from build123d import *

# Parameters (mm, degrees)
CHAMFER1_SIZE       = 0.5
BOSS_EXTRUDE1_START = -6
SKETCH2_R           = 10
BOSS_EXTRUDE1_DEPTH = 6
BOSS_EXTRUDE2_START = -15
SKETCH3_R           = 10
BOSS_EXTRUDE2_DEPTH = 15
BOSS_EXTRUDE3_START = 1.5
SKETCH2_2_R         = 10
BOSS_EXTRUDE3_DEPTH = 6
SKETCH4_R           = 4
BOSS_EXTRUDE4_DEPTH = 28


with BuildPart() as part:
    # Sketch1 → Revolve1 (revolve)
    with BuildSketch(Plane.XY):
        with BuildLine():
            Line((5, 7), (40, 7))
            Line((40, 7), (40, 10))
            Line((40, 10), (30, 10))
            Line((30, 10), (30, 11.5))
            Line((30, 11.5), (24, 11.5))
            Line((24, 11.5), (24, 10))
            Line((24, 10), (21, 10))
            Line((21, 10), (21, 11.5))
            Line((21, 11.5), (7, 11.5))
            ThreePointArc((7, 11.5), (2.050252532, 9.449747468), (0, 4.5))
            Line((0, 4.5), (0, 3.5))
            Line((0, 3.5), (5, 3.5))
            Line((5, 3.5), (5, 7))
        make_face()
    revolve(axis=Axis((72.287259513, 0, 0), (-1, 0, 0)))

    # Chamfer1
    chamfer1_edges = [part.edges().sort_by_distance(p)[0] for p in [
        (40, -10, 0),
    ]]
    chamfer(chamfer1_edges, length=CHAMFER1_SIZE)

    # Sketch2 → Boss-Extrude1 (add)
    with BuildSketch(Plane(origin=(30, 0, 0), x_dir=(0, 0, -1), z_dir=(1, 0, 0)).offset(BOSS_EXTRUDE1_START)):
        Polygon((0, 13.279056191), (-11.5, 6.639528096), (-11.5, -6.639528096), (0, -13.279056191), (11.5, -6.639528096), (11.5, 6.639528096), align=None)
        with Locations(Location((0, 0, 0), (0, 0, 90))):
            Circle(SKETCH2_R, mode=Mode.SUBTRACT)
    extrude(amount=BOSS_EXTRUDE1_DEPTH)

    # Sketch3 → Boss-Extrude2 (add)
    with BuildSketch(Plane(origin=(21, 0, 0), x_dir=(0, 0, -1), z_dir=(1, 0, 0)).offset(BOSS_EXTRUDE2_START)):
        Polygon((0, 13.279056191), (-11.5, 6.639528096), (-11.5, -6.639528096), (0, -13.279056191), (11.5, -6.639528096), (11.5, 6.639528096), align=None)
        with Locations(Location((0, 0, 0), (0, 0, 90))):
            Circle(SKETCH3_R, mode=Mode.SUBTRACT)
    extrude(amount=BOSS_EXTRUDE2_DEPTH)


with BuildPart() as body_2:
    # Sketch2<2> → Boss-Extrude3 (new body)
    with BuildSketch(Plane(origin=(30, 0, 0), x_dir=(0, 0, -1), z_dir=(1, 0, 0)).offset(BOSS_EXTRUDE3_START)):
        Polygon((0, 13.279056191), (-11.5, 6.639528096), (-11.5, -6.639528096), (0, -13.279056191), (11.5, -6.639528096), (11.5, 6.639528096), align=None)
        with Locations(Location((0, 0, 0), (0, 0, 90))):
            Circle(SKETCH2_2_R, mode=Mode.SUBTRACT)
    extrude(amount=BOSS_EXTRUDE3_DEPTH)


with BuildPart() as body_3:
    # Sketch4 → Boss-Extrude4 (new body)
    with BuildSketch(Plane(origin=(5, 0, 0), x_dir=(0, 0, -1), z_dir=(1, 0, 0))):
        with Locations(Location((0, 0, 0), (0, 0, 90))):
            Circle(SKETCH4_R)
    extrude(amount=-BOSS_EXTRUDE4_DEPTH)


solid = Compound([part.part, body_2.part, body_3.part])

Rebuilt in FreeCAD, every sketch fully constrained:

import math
import FreeCAD as App
import Part
import Sketcher
from FreeCAD import Vector
Q = App.Units.Quantity


def edges_at(feature, points):
    """Names of the edges that pass closest to the given points."""
    edges = feature.Shape.Edges
    near = lambda p: min(range(len(edges)), key=lambda i: edges[i].distToShape(Part.Vertex(*p))[0])
    return sorted({f"Edge{near(p) + 1}" for p in points})

doc = App.newDocument("Part")
params = doc.addObject("Spreadsheet::Sheet", "Params")
for row, (alias, value) in enumerate([
    ("sketch1_radius", "7 mm"),
    ("sketch1_width", "35 mm"),
    ("sketch1_width2", "10 mm"),
    ("sketch1_width3", "6 mm"),
    ("sketch1_width4", "3 mm"),
    ("revolution_angle", "360 deg"),
    ("chamfer_size", "0.5 mm"),
    ("sketch2_diameter", "20 mm"),
    ("pad1_length", "6 mm"),
    ("sketch3_diameter", "20 mm"),
    ("pad2_length", "15 mm"),
    ("sketch4_diameter", "20 mm"),
    ("pad3_length", "6 mm"),
    ("sketch5_diameter", "8 mm"),
    ("pad4_length", "28 mm"),
], start=1):
    params.set(f"A{row}", alias)
    params.set(f"B{row}", "=" + value)
    params.setAlias(f"B{row}", alias)

body = doc.addObject("PartDesign::Body", "Body")

# Sketch on XY plane
sketch1 = body.newObject("Sketcher::SketchObject", "Sketch")
sketch1.AttachmentSupport = (doc.getObject("XY_Plane"), [""])
sketch1.MapMode = "FlatFace"
sketch1.addGeometry(Part.LineSegment(Vector(5, 7, 0), Vector(40, 7, 0)), False)
sketch1.addGeometry(Part.LineSegment(Vector(40, 7, 0), Vector(40, 10, 0)), False)
sketch1.addGeometry(Part.LineSegment(Vector(40, 10, 0), Vector(30, 10, 0)), False)
sketch1.addGeometry(Part.LineSegment(Vector(30, 10, 0), Vector(30, 11.5, 0)), False)
sketch1.addGeometry(Part.LineSegment(Vector(30, 11.5, 0), Vector(24, 11.5, 0)), False)
sketch1.addGeometry(Part.LineSegment(Vector(24, 11.5, 0), Vector(24, 10, 0)), False)
sketch1.addGeometry(Part.LineSegment(Vector(24, 10, 0), Vector(21, 10, 0)), False)
sketch1.addGeometry(Part.LineSegment(Vector(21, 10, 0), Vector(21, 11.5, 0)), False)
sketch1.addGeometry(Part.LineSegment(Vector(21, 11.5, 0), Vector(7, 11.5, 0)), False)
sketch1.addGeometry(Part.ArcOfCircle(Part.Circle(Vector(7, 4.5, 0), Vector(0, 0, 1), 7), math.radians(90), math.radians(180)), False)
sketch1.addGeometry(Part.LineSegment(Vector(0, 4.5, 0), Vector(0, 3.5, 0)), False)
sketch1.addGeometry(Part.LineSegment(Vector(0, 3.5, 0), Vector(5, 3.5, 0)), False)
sketch1.addGeometry(Part.LineSegment(Vector(5, 3.5, 0), Vector(5, 7, 0)), False)
sketch1.addConstraint(Sketcher.Constraint("Coincident", 0, 2, 1, 1))
sketch1.addConstraint(Sketcher.Constraint("Coincident", 1, 2, 2, 1))
sketch1.addConstraint(Sketcher.Constraint("Coincident", 2, 2, 3, 1))
sketch1.addConstraint(Sketcher.Constraint("Coincident", 3, 2, 4, 1))
sketch1.addConstraint(Sketcher.Constraint("Coincident", 4, 2, 5, 1))
sketch1.addConstraint(Sketcher.Constraint("Coincident", 5, 2, 6, 1))
sketch1.addConstraint(Sketcher.Constraint("Coincident", 6, 2, 7, 1))
sketch1.addConstraint(Sketcher.Constraint("Coincident", 7, 2, 8, 1))
sketch1.addConstraint(Sketcher.Constraint("Tangent", 8, 2, 9, 1))
sketch1.addConstraint(Sketcher.Constraint("Tangent", 9, 2, 10, 1))
sketch1.addConstraint(Sketcher.Constraint("Coincident", 10, 2, 11, 1))
sketch1.addConstraint(Sketcher.Constraint("Coincident", 11, 2, 12, 1))
sketch1.addConstraint(Sketcher.Constraint("Coincident", 12, 2, 0, 1))
sketch1.addConstraint(Sketcher.Constraint("Horizontal", 0))
sketch1.addConstraint(Sketcher.Constraint("Vertical", 1))
sketch1.addConstraint(Sketcher.Constraint("Horizontal", 2))
sketch1.addConstraint(Sketcher.Constraint("Vertical", 3))
sketch1.addConstraint(Sketcher.Constraint("Horizontal", 4))
sketch1.addConstraint(Sketcher.Constraint("Vertical", 5))
sketch1.addConstraint(Sketcher.Constraint("Horizontal", 6))
sketch1.addConstraint(Sketcher.Constraint("Vertical", 7))
sketch1.addConstraint(Sketcher.Constraint("Horizontal", 8))
sketch1.addConstraint(Sketcher.Constraint("Vertical", 10))
sketch1.addConstraint(Sketcher.Constraint("Horizontal", 11))
sketch1.addConstraint(Sketcher.Constraint("Vertical", 12))
sketch1.addConstraint(Sketcher.Constraint("PointOnObject", 9, 2, -2))
sketch1.addConstraint(Sketcher.Constraint("Horizontal", 2, 2, 5, 2))
sketch1.addConstraint(Sketcher.Constraint("Horizontal", 4, 2, 7, 2))
sketch1.addConstraint(Sketcher.Constraint("Equal", 6, 1))
sketch1.addConstraint(Sketcher.Constraint("Radius", 9, Q("7 mm")))
sketch1.addConstraint(Sketcher.Constraint("DistanceX", 0, 1, 0, 2, Q("35 mm")))
sketch1.addConstraint(Sketcher.Constraint("DistanceX", 2, 2, 2, 1, Q("10 mm")))
sketch1.addConstraint(Sketcher.Constraint("DistanceX", 4, 2, 4, 1, Q("6 mm")))
sketch1.addConstraint(Sketcher.Constraint("DistanceX", 6, 2, 6, 1, Q("3 mm")))
sketch1.addConstraint(Sketcher.Constraint("DistanceX", 8, 2, 8, 1, Q("14 mm")))
sketch1.addConstraint(Sketcher.Constraint("DistanceY", 10, 2, 10, 1, Q("1 mm")))
sketch1.addConstraint(Sketcher.Constraint("DistanceY", 3, 1, 3, 2, Q("1.5 mm")))
sketch1.addConstraint(Sketcher.Constraint("DistanceY", -1, 1, 0, 2, Q("7 mm")))
sketch1.setExpression("Constraints[29]", "Params.sketch1_radius")
sketch1.setExpression("Constraints[30]", "Params.sketch1_width")
sketch1.setExpression("Constraints[31]", "Params.sketch1_width2")
sketch1.setExpression("Constraints[32]", "Params.sketch1_width3")
sketch1.setExpression("Constraints[33]", "Params.sketch1_width4")
revolution = body.newObject("PartDesign::Revolution", "Revolution")
revolution.Profile = sketch1
revolution.ReferenceAxis = (sketch1, ["H_Axis"])
revolution.setExpression("Angle", "Params.revolution_angle")
doc.recompute()

chamfer = body.newObject("PartDesign::Chamfer", "Chamfer")
chamfer.Base = (revolution, edges_at(revolution, [(40, -10, 0)]))
chamfer.setExpression("Size", "Params.chamfer_size")

# Sketch on YZ plane
sketch2 = body.newObject("Sketcher::SketchObject", "Sketch001")
sketch2.AttachmentSupport = (doc.getObject("YZ_Plane"), [""])
sketch2.MapMode = "FlatFace"
sketch2.AttachmentOffset = App.Placement(Vector(0, 0, 24), App.Rotation())
sketch2.addGeometry(Part.LineSegment(Vector(13, 0, 0), Vector(7, 12, 0)), False)
sketch2.addGeometry(Part.LineSegment(Vector(7, 12, 0), Vector(-7, 12, 0)), False)
sketch2.addGeometry(Part.LineSegment(Vector(-7, 12, 0), Vector(-13, 0, 0)), False)
sketch2.addGeometry(Part.LineSegment(Vector(-13, 0, 0), Vector(-7, -12, 0)), False)
sketch2.addGeometry(Part.LineSegment(Vector(-7, -12, 0), Vector(7, -12, 0)), False)
sketch2.addGeometry(Part.LineSegment(Vector(7, -12, 0), Vector(13, 0, 0)), False)
sketch2.addGeometry(Part.Circle(Vector(0, 0, 0), Vector(0, 0, 1), 10), False)
sketch2.addConstraint(Sketcher.Constraint("Coincident", 0, 2, 1, 1))
sketch2.addConstraint(Sketcher.Constraint("Coincident", 1, 2, 2, 1))
sketch2.addConstraint(Sketcher.Constraint("Coincident", 2, 2, 3, 1))
sketch2.addConstraint(Sketcher.Constraint("Coincident", 3, 2, 4, 1))
sketch2.addConstraint(Sketcher.Constraint("Coincident", 4, 2, 5, 1))
sketch2.addConstraint(Sketcher.Constraint("Coincident", 5, 2, 0, 1))
sketch2.addConstraint(Sketcher.Constraint("Horizontal", 1))
sketch2.addConstraint(Sketcher.Constraint("Horizontal", 4))
sketch2.addConstraint(Sketcher.Constraint("Coincident", 6, 3, -1, 1))
sketch2.addConstraint(Sketcher.Constraint("Symmetric", 0, 2, 3, 2, -1, 1))
sketch2.addConstraint(Sketcher.Constraint("Symmetric", 2, 2, 5, 2, -1, 1))
sketch2.addConstraint(Sketcher.Constraint("PointOnObject", 2, 2, -1))
sketch2.addConstraint(Sketcher.Constraint("Parallel", 2, 5))
sketch2.addConstraint(Sketcher.Constraint("Vertical", 1, 2, 3, 2))
sketch2.addConstraint(Sketcher.Constraint("Diameter", 6, Q("20 mm")))
sketch2.addConstraint(Sketcher.Constraint("Angle", 0, Q("120 deg")))
sketch2.addConstraint(Sketcher.Constraint("DistanceY", 3, 2, 1, 2, Q("23 mm")))
sketch2.addConstraint(Sketcher.Constraint("DistanceX", 1, 2, 1, 1, Q("13.279056 mm")))
sketch2.setExpression("Constraints[14]", "Params.sketch2_diameter")
pad1 = body.newObject("PartDesign::Pad", "Pad")
pad1.Profile = sketch2
pad1.setExpression("Length", "Params.pad1_length")

# Sketch on YZ plane
sketch3 = body.newObject("Sketcher::SketchObject", "Sketch002")
sketch3.AttachmentSupport = (doc.getObject("YZ_Plane"), [""])
sketch3.MapMode = "FlatFace"
sketch3.AttachmentOffset = App.Placement(Vector(0, 0, 6), App.Rotation())
sketch3.addGeometry(Part.LineSegment(Vector(13, 0, 0), Vector(7, 12, 0)), False)
sketch3.addGeometry(Part.LineSegment(Vector(7, 12, 0), Vector(-7, 12, 0)), False)
sketch3.addGeometry(Part.LineSegment(Vector(-7, 12, 0), Vector(-13, 0, 0)), False)
sketch3.addGeometry(Part.LineSegment(Vector(-13, 0, 0), Vector(-7, -12, 0)), False)
sketch3.addGeometry(Part.LineSegment(Vector(-7, -12, 0), Vector(7, -12, 0)), False)
sketch3.addGeometry(Part.LineSegment(Vector(7, -12, 0), Vector(13, 0, 0)), False)
sketch3.addGeometry(Part.Circle(Vector(0, 0, 0), Vector(0, 0, 1), 10), False)
sketch3.addConstraint(Sketcher.Constraint("Coincident", 0, 2, 1, 1))
sketch3.addConstraint(Sketcher.Constraint("Coincident", 1, 2, 2, 1))
sketch3.addConstraint(Sketcher.Constraint("Coincident", 2, 2, 3, 1))
sketch3.addConstraint(Sketcher.Constraint("Coincident", 3, 2, 4, 1))
sketch3.addConstraint(Sketcher.Constraint("Coincident", 4, 2, 5, 1))
sketch3.addConstraint(Sketcher.Constraint("Coincident", 5, 2, 0, 1))
sketch3.addConstraint(Sketcher.Constraint("Horizontal", 1))
sketch3.addConstraint(Sketcher.Constraint("Horizontal", 4))
sketch3.addConstraint(Sketcher.Constraint("Coincident", 6, 3, -1, 1))
sketch3.addConstraint(Sketcher.Constraint("Symmetric", 0, 2, 3, 2, -1, 1))
sketch3.addConstraint(Sketcher.Constraint("Symmetric", 2, 2, 5, 2, -1, 1))
sketch3.addConstraint(Sketcher.Constraint("PointOnObject", 2, 2, -1))
sketch3.addConstraint(Sketcher.Constraint("Parallel", 2, 5))
sketch3.addConstraint(Sketcher.Constraint("Vertical", 1, 2, 3, 2))
sketch3.addConstraint(Sketcher.Constraint("Diameter", 6, Q("20 mm")))
sketch3.addConstraint(Sketcher.Constraint("Angle", 0, Q("120 deg")))
sketch3.addConstraint(Sketcher.Constraint("DistanceY", 3, 2, 1, 2, Q("23 mm")))
sketch3.addConstraint(Sketcher.Constraint("DistanceX", 1, 2, 1, 1, Q("13.279056 mm")))
sketch3.setExpression("Constraints[14]", "Params.sketch3_diameter")
pad2 = body.newObject("PartDesign::Pad", "Pad001")
pad2.Profile = sketch3
pad2.setExpression("Length", "Params.pad2_length")
body2 = doc.addObject("PartDesign::Body", "Body001")

# Sketch on YZ plane
sketch4 = body2.newObject("Sketcher::SketchObject", "Sketch003")
sketch4.AttachmentSupport = (doc.getObject("YZ_Plane001"), [""])
sketch4.MapMode = "FlatFace"
sketch4.AttachmentOffset = App.Placement(Vector(0, 0, 31.5), App.Rotation())
sketch4.addGeometry(Part.LineSegment(Vector(13, 0, 0), Vector(7, 12, 0)), False)
sketch4.addGeometry(Part.LineSegment(Vector(7, 12, 0), Vector(-7, 12, 0)), False)
sketch4.addGeometry(Part.LineSegment(Vector(-7, 12, 0), Vector(-13, 0, 0)), False)
sketch4.addGeometry(Part.LineSegment(Vector(-13, 0, 0), Vector(-7, -12, 0)), False)
sketch4.addGeometry(Part.LineSegment(Vector(-7, -12, 0), Vector(7, -12, 0)), False)
sketch4.addGeometry(Part.LineSegment(Vector(7, -12, 0), Vector(13, 0, 0)), False)
sketch4.addGeometry(Part.Circle(Vector(0, 0, 0), Vector(0, 0, 1), 10), False)
sketch4.addConstraint(Sketcher.Constraint("Coincident", 0, 2, 1, 1))
sketch4.addConstraint(Sketcher.Constraint("Coincident", 1, 2, 2, 1))
sketch4.addConstraint(Sketcher.Constraint("Coincident", 2, 2, 3, 1))
sketch4.addConstraint(Sketcher.Constraint("Coincident", 3, 2, 4, 1))
sketch4.addConstraint(Sketcher.Constraint("Coincident", 4, 2, 5, 1))
sketch4.addConstraint(Sketcher.Constraint("Coincident", 5, 2, 0, 1))
sketch4.addConstraint(Sketcher.Constraint("Horizontal", 1))
sketch4.addConstraint(Sketcher.Constraint("Horizontal", 4))
sketch4.addConstraint(Sketcher.Constraint("Coincident", 6, 3, -1, 1))
sketch4.addConstraint(Sketcher.Constraint("Symmetric", 0, 2, 3, 2, -1, 1))
sketch4.addConstraint(Sketcher.Constraint("Symmetric", 2, 2, 5, 2, -1, 1))
sketch4.addConstraint(Sketcher.Constraint("PointOnObject", 2, 2, -1))
sketch4.addConstraint(Sketcher.Constraint("Parallel", 2, 5))
sketch4.addConstraint(Sketcher.Constraint("Vertical", 1, 2, 3, 2))
sketch4.addConstraint(Sketcher.Constraint("Diameter", 6, Q("20 mm")))
sketch4.addConstraint(Sketcher.Constraint("Angle", 0, Q("120 deg")))
sketch4.addConstraint(Sketcher.Constraint("DistanceY", 3, 2, 1, 2, Q("23 mm")))
sketch4.addConstraint(Sketcher.Constraint("DistanceX", 1, 2, 1, 1, Q("13.279056 mm")))
sketch4.setExpression("Constraints[14]", "Params.sketch4_diameter")
pad3 = body2.newObject("PartDesign::Pad", "Pad002")
pad3.Profile = sketch4
pad3.setExpression("Length", "Params.pad3_length")
body3 = doc.addObject("PartDesign::Body", "Body002")

# Sketch on YZ plane
sketch5 = body3.newObject("Sketcher::SketchObject", "Sketch004")
sketch5.AttachmentSupport = (doc.getObject("YZ_Plane002"), [""])
sketch5.MapMode = "FlatFace"
sketch5.AttachmentOffset = App.Placement(Vector(0, 0, 5), App.Rotation())
sketch5.addGeometry(Part.Circle(Vector(0, 0, 0), Vector(0, 0, 1), 4), False)
sketch5.addConstraint(Sketcher.Constraint("Coincident", 0, 3, -1, 1))
sketch5.addConstraint(Sketcher.Constraint("Diameter", 0, Q("8 mm")))
sketch5.setExpression("Constraints[1]", "Params.sketch5_diameter")
pad4 = body3.newObject("PartDesign::Pad", "Pad003")
pad4.Profile = sketch5
pad4.setExpression("Length", "Params.pad4_length")
pad4.Reversed = True

doc.recompute()
